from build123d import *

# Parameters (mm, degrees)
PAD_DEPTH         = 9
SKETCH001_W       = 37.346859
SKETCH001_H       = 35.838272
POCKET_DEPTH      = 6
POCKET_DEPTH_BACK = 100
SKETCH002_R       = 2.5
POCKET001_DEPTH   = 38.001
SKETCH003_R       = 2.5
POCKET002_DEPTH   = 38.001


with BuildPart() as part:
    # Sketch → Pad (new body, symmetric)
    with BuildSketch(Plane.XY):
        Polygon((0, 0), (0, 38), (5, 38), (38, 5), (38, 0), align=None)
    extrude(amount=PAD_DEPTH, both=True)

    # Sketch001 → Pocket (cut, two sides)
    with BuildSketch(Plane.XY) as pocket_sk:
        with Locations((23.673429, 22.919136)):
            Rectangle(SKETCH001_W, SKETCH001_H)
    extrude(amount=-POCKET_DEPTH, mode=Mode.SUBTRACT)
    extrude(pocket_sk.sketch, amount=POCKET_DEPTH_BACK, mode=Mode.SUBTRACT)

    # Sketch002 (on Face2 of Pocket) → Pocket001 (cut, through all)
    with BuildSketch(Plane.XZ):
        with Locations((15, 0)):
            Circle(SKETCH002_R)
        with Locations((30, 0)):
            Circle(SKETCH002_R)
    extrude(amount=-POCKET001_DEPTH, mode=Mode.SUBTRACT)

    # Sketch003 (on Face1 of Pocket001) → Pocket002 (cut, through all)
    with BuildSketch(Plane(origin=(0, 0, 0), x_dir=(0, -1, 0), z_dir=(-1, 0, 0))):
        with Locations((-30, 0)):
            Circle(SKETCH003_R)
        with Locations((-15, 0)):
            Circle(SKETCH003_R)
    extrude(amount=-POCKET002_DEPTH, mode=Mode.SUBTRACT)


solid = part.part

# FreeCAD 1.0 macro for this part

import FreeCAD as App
import Part
import Sketcher
Q = App.Units.Quantity

doc = App.newDocument("Part")
body = doc.addObject("PartDesign::Body", "Body")

sketch1 = doc.addObject("Sketcher::SketchObject", "Sketch")
body.addObject(sketch1)
sketch1.AttachmentSupport = (doc.XY_Plane, [""])
sketch1.MapMode = "FlatFace"
sketch1.addGeometry([
    Part.LineSegment(App.Vector(0, 38, 0), App.Vector(0, 0, 0)),
    Part.LineSegment(App.Vector(0, 0, 0), App.Vector(38, 0, 0)),
    Part.LineSegment(App.Vector(38, 0, 0), App.Vector(38, 5, 0)),
    Part.LineSegment(App.Vector(38, 5, 0), App.Vector(5, 38, 0)),
    Part.LineSegment(App.Vector(5, 38, 0), App.Vector(0, 38, 0)),
], False)
sketch1.addConstraint([
    Sketcher.Constraint("Coincident", 0, 2, 1, 1),
    Sketcher.Constraint("Coincident", 1, 2, 2, 1),
    Sketcher.Constraint("Coincident", 2, 2, 3, 1),
    Sketcher.Constraint("Coincident", 3, 2, 4, 1),
    Sketcher.Constraint("Coincident", 4, 2, 0, 1),
    Sketcher.Constraint("Vertical", 0),
    Sketcher.Constraint("Horizontal", 1),
    Sketcher.Constraint("Vertical", 2),
    Sketcher.Constraint("Horizontal", 4),
    Sketcher.Constraint("Coincident", 0, 2, -1, 1),
    Sketcher.Constraint("Equal", 1, 0),
    Sketcher.Constraint("Equal", 4, 2),
    Sketcher.Constraint("DistanceX", 1, 1, 1, 2, Q("38 mm")),
    Sketcher.Constraint("DistanceX", 4, 2, 4, 1, Q("5 mm")),
])
pad1 = doc.addObject("PartDesign::Pad", "Pad")
body.addObject(pad1)
pad1.Profile = sketch1
pad1.Length = 18
pad1.Midplane = True

sketch2 = doc.addObject("Sketcher::SketchObject", "Sketch001")
body.addObject(sketch2)
sketch2.AttachmentSupport = (doc.XY_Plane, [""])
sketch2.MapMode = "FlatFace"
sketch2.addGeometry([
    Part.LineSegment(App.Vector(5, 41, 0), App.Vector(5, 5, 0)),
    Part.LineSegment(App.Vector(5, 5, 0), App.Vector(42, 5, 0)),
    Part.LineSegment(App.Vector(42, 5, 0), App.Vector(42, 41, 0)),
    Part.LineSegment(App.Vector(42, 41, 0), App.Vector(5, 41, 0)),
], False)
sketch2.addConstraint([
    Sketcher.Constraint("Coincident", 0, 2, 1, 1),
    Sketcher.Constraint("Coincident", 1, 2, 2, 1),
    Sketcher.Constraint("Coincident", 2, 2, 3, 1),
    Sketcher.Constraint("Coincident", 3, 2, 0, 1),
    Sketcher.Constraint("Vertical", 0),
    Sketcher.Constraint("Horizontal", 1),
    Sketcher.Constraint("Vertical", 2),
    Sketcher.Constraint("Horizontal", 3),
    Sketcher.Constraint("DistanceX", -1, 1, 0, 2, Q("5 mm")),
    Sketcher.Constraint("DistanceY", -1, 1, 0, 2, Q("5 mm")),
    Sketcher.Constraint("DistanceX", 1, 1, 1, 2, Q("37.346859 mm")),
    Sketcher.Constraint("DistanceY", 0, 2, 0, 1, Q("35.838272 mm")),
])
pocket1 = doc.addObject("PartDesign::Pocket", "Pocket")
body.addObject(pocket1)
pocket1.Profile = sketch2
pocket1.Type = "TwoLengths"
pocket1.Length = 6
pocket1.Length2 = 100

sketch3 = doc.addObject("Sketcher::SketchObject", "Sketch002")
body.addObject(sketch3)
sketch3.AttachmentSupport = (doc.XZ_Plane, [""])
sketch3.MapMode = "FlatFace"
sketch3.addGeometry([
    Part.Circle(App.Vector(15, 0, 0), App.Vector(0, 0, 1), 2.5),
    Part.Circle(App.Vector(30, 0, 0), App.Vector(0, 0, 1), 2.5),
], False)
sketch3.addConstraint([
    Sketcher.Constraint("Equal", 0, 1),
    Sketcher.Constraint("PointOnObject", 0, 3, -1),
    Sketcher.Constraint("PointOnObject", 1, 3, -1),
    Sketcher.Constraint("Diameter", 0, Q("5 mm")),
    Sketcher.Constraint("DistanceX", -1, 1, 0, 3, Q("15 mm")),
    Sketcher.Constraint("DistanceX", -1, 1, 1, 3, Q("30 mm")),
])
pocket2 = doc.addObject("PartDesign::Pocket", "Pocket001")
body.addObject(pocket2)
pocket2.Profile = sketch3
pocket2.Type = "ThroughAll"

sketch4 = doc.addObject("Sketcher::SketchObject", "Sketch003")
body.addObject(sketch4)
sketch4.AttachmentSupport = (doc.YZ_Plane, [""])
sketch4.MapMode = "FlatFace"
sketch4.addGeometry([
    Part.Circle(App.Vector(30, 0, 0), App.Vector(0, 0, 1), 2.5),
    Part.Circle(App.Vector(15, 0, 0), App.Vector(0, 0, 1), 2.5),
], False)
sketch4.addConstraint([
    Sketcher.Constraint("Equal", 0, 1),
    Sketcher.Constraint("PointOnObject", 0, 3, -1),
    Sketcher.Constraint("PointOnObject", 1, 3, -1),
    Sketcher.Constraint("Diameter", 0, Q("5 mm")),
    Sketcher.Constraint("DistanceX", -1, 1, 0, 3, Q("30 mm")),
    Sketcher.Constraint("DistanceX", -1, 1, 1, 3, Q("15 mm")),
])
pocket3 = doc.addObject("PartDesign::Pocket", "Pocket002")
body.addObject(pocket3)
pocket3.Profile = sketch4
pocket3.Type = "ThroughAll"
pocket3.Reversed = True

doc.recompute()
